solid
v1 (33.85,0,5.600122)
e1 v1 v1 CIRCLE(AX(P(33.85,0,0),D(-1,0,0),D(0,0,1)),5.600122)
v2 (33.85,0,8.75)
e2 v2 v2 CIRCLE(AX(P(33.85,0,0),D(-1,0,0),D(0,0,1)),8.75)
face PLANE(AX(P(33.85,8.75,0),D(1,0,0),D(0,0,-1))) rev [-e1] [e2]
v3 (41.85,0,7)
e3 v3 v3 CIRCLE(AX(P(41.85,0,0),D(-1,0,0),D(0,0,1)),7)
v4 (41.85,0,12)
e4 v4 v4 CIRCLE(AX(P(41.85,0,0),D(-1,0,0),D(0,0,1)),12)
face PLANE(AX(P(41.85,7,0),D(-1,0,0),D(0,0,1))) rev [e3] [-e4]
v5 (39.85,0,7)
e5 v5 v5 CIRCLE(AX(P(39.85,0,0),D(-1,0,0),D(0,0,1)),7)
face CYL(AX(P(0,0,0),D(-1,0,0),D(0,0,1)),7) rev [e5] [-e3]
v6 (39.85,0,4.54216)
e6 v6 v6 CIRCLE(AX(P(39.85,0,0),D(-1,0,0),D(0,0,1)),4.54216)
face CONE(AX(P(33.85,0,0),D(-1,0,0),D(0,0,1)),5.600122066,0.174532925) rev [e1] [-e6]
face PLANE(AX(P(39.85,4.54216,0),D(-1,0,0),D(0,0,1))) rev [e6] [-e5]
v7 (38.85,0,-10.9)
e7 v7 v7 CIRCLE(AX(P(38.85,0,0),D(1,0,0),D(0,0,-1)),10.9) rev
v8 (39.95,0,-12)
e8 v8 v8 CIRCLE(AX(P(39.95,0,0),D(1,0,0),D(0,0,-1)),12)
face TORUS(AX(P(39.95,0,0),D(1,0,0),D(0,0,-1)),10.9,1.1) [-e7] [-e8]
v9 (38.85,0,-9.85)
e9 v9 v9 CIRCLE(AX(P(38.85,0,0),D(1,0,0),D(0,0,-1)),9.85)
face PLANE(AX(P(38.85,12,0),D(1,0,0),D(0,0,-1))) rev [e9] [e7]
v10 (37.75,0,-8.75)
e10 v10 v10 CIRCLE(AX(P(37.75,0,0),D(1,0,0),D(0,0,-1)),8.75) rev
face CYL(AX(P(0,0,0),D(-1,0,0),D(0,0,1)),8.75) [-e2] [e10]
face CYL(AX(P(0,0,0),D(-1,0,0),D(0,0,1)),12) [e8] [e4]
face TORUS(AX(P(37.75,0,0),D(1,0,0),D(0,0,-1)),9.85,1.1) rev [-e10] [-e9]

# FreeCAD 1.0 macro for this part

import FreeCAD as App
import Part
import Sketcher

V = App.Vector
Q = App.Units.Quantity


def edges_at(feature, points):
    """Names of the edges that pass closest to the given points."""
    edges = feature.Shape.Edges
    near = lambda p: min(range(len(edges)), key=lambda i: edges[i].distToShape(Part.Vertex(*p))[0])
    return sorted({f"Edge{near(p) + 1}" for p in points})

doc = App.newDocument("Part")
body = doc.addObject("PartDesign::Body", "Body")

# Sketch on XY plane
sketch1 = body.newObject("Sketcher::SketchObject", "Sketch")
sketch1.AttachmentSupport = (doc.getObject("XY_Plane"), [""])
sketch1.MapMode = "FlatFace"
sketch1.addGeometry(Part.LineSegment(V(33.9, 5.6, 0), V(39.9, 4.5, 0)), False)
sketch1.addGeometry(Part.LineSegment(V(39.9, 4.5, 0), V(39.9, 7, 0)), False)
sketch1.addGeometry(Part.LineSegment(V(39.9, 7, 0), V(41.9, 7, 0)), False)
sketch1.addGeometry(Part.LineSegment(V(41.9, 7, 0), V(41.9, 12, 0)), False)
sketch1.addGeometry(Part.LineSegment(V(41.9, 12, 0), V(38.9, 12, 0)), False)
sketch1.addGeometry(Part.LineSegment(V(38.9, 12, 0), V(38.9, 8.8, 0)), False)
sketch1.addGeometry(Part.LineSegment(V(38.9, 8.8, 0), V(33.9, 8.8, 0)), False)
sketch1.addGeometry(Part.LineSegment(V(33.9, 8.8, 0), V(33.9, 5.6, 0)), False)
sketch1.addConstraint(Sketcher.Constraint("Coincident", 0, 2, 1, 1))
sketch1.addConstraint(Sketcher.Constraint("Coincident", 1, 2, 2, 1))
sketch1.addConstraint(Sketcher.Constraint("Coincident", 2, 2, 3, 1))
sketch1.addConstraint(Sketcher.Constraint("Coincident", 3, 2, 4, 1))
sketch1.addConstraint(Sketcher.Constraint("Coincident", 4, 2, 5, 1))
sketch1.addConstraint(Sketcher.Constraint("Coincident", 5, 2, 6, 1))
sketch1.addConstraint(Sketcher.Constraint("Coincident", 6, 2, 7, 1))
sketch1.addConstraint(Sketcher.Constraint("Coincident", 7, 2, 0, 1))
sketch1.addConstraint(Sketcher.Constraint("Vertical", 1))
sketch1.addConstraint(Sketcher.Constraint("Horizontal", 2))
sketch1.addConstraint(Sketcher.Constraint("Vertical", 3))
sketch1.addConstraint(Sketcher.Constraint("Horizontal", 4))
sketch1.addConstraint(Sketcher.Constraint("Vertical", 5))
sketch1.addConstraint(Sketcher.Constraint("Horizontal", 6))
sketch1.addConstraint(Sketcher.Constraint("Vertical", 7))
sketch1.addConstraint(Sketcher.Constraint("Equal", 6, 3))
sketch1.addConstraint(Sketcher.Constraint("DistanceX", 2, 1, 2, 2, Q("2 mm")))
sketch1.addConstraint(Sketcher.Constraint("DistanceX", 4, 2, 4, 1, Q("3 mm")))
sketch1.addConstraint(Sketcher.Constraint("DistanceX", 6, 2, 6, 1, Q("5 mm")))
sketch1.addConstraint(Sketcher.Constraint("Angle", 0, Q("-10 deg")))
sketch1.addConstraint(Sketcher.Constraint("DistanceY", -1, 1, 1, 2, Q("7 mm")))
sketch1.addConstraint(Sketcher.Constraint("DistanceY", 5, 2, 5, 1, Q("3.25 mm")))
sketch1.addConstraint(Sketcher.Constraint("DistanceX", -1, 1, 0, 2, Q("39.85 mm")))
sketch1.addConstraint(Sketcher.Constraint("DistanceY", 1, 1, 1, 2, Q("2.45784 mm")))
revolution = body.newObject("PartDesign::Revolution", "Revolution")
revolution.Profile = sketch1
revolution.ReferenceAxis = (sketch1, ["H_Axis"])
revolution.Angle = 360
doc.recompute()

fillet = body.newObject("PartDesign::Fillet", "Fillet")
fillet.Base = (revolution, edges_at(revolution, [(38.85, 0, -8.75), (38.85, 0, -12)]))
fillet.Radius = 1.1

doc.recompute()
